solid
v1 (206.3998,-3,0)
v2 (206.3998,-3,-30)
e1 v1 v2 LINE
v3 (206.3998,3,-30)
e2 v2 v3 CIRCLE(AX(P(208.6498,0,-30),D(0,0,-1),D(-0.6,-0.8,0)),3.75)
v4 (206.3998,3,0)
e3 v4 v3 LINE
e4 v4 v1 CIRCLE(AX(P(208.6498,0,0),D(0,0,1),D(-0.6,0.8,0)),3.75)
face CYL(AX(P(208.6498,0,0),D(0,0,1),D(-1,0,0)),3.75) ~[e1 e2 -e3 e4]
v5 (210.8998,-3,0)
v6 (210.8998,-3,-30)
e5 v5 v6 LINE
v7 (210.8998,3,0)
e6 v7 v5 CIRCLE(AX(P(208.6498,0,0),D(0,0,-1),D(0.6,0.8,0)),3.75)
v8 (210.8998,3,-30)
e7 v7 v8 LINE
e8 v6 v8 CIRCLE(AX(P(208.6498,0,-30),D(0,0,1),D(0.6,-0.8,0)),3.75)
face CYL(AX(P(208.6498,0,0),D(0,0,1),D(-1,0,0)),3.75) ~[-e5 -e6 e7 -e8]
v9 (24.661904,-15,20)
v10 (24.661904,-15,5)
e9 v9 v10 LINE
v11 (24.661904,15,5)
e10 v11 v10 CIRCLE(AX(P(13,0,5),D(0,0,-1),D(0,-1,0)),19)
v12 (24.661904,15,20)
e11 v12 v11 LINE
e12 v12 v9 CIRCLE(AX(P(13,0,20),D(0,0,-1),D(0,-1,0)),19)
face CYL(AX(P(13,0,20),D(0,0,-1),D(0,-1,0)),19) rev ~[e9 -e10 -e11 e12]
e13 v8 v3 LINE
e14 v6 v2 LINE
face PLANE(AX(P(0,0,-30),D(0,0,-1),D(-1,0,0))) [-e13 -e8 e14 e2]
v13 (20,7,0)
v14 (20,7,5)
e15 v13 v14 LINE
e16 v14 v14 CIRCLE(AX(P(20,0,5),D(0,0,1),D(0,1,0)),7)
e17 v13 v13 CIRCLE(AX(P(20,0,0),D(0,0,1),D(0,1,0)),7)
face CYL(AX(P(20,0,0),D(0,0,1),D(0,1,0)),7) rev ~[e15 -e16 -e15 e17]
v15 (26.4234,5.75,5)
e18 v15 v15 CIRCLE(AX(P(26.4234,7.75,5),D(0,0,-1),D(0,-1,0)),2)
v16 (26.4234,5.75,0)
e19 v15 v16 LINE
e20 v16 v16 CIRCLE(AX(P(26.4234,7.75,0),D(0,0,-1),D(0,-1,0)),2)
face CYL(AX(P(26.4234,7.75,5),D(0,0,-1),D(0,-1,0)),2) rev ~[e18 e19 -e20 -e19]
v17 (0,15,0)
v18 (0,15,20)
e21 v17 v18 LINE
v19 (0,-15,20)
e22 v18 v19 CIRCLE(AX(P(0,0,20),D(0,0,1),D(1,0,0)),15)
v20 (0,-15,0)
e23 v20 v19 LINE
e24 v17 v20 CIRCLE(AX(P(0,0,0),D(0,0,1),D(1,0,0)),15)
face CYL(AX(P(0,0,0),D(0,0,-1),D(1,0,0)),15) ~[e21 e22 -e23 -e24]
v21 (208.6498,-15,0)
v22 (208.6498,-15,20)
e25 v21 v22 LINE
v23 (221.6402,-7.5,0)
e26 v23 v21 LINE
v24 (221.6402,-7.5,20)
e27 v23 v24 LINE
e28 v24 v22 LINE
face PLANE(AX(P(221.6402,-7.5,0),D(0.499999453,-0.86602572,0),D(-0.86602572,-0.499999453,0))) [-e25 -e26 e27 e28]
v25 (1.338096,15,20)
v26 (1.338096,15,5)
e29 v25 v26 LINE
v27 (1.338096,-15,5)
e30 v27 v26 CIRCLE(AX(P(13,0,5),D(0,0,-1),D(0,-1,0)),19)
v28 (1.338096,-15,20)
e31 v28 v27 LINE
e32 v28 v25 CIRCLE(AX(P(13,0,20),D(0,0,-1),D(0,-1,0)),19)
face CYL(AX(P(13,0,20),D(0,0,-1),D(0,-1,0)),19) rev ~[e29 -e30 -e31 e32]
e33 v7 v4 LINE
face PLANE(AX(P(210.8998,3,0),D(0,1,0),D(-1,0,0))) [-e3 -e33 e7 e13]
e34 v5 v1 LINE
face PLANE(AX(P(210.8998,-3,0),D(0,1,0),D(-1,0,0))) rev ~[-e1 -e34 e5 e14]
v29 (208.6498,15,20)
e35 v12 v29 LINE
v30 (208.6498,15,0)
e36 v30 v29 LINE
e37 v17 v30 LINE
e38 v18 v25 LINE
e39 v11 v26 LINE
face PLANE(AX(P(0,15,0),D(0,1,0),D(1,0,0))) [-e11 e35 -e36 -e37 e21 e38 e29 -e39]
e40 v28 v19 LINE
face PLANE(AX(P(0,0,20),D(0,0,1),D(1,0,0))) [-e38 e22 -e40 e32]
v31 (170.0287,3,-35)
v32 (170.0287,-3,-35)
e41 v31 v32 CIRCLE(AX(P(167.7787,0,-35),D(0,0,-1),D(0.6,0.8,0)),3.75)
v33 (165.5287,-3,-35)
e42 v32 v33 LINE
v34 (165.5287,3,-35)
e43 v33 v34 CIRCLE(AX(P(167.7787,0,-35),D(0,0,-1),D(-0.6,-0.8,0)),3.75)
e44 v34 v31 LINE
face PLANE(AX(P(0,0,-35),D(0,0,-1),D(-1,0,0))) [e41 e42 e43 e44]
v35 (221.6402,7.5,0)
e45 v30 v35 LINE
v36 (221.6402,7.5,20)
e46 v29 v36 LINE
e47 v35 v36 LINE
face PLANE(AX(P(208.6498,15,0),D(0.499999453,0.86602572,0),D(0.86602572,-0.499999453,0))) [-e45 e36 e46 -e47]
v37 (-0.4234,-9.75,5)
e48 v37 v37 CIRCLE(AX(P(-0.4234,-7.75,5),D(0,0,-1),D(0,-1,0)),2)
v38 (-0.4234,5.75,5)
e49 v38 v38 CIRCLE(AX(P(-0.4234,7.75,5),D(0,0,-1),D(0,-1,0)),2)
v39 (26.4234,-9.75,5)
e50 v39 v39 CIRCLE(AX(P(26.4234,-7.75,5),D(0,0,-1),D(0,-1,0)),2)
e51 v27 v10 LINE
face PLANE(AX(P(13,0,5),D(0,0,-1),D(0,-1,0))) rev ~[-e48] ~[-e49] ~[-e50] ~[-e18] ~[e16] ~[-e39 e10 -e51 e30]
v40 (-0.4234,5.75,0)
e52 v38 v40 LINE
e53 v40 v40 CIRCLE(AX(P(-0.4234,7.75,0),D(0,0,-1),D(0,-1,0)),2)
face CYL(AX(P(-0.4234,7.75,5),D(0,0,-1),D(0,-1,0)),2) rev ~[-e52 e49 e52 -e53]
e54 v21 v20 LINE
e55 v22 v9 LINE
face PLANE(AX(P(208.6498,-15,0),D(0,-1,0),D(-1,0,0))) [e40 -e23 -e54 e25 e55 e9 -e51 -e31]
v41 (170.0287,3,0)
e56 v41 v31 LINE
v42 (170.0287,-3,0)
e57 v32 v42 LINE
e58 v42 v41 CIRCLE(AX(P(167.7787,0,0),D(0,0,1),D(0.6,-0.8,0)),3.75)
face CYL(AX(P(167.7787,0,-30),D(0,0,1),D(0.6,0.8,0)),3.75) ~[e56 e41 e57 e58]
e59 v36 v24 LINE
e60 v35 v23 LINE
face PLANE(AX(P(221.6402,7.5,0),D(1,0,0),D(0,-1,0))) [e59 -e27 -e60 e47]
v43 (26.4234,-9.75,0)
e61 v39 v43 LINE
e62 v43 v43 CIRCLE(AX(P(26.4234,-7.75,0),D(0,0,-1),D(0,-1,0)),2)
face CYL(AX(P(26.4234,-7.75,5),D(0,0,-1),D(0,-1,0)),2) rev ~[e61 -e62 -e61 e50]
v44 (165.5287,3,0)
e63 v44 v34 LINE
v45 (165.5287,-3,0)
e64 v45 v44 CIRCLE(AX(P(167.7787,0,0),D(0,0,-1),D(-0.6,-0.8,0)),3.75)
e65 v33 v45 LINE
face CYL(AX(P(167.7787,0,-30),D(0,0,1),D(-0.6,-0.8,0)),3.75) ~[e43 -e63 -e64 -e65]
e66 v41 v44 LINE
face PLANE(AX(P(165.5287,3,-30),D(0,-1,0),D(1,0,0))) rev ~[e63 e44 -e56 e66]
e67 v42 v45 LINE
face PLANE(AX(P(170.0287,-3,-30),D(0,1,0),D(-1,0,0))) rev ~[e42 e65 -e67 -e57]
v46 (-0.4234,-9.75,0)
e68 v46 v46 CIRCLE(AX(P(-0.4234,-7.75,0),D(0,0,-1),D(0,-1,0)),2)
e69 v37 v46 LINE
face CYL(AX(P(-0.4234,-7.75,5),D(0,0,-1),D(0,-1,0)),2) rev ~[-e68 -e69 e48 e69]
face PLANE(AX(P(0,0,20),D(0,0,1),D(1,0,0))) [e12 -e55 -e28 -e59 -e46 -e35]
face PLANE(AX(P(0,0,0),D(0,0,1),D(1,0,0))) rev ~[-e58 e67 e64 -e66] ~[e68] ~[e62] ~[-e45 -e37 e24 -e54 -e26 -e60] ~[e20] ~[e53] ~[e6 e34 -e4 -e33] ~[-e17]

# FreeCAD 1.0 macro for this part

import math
import FreeCAD as App
import Part
import Sketcher

V = App.Vector
Q = App.Units.Quantity

doc = App.newDocument("Part")
body = doc.addObject("PartDesign::Body", "Body")

# Sketch on XY plane
sketch1 = body.newObject("Sketcher::SketchObject", "Sketch")
sketch1.AttachmentSupport = (doc.getObject("XY_Plane"), [""])
sketch1.MapMode = "FlatFace"
sketch1.addGeometry([
    Part.ArcOfCircle(Part.Circle(V(0, 0, 0), V(0, 0, 1), 15), math.radians(90), math.radians(270)),  # 0
    Part.LineSegment(V(0, -15, 0), V(209, -15, 0)),  # 1
    Part.LineSegment(V(209, -15, 0), V(222, -8, 0)),  # 2
    Part.LineSegment(V(222, -8, 0), V(222, 8, 0)),  # 3
    Part.LineSegment(V(222, 8, 0), V(209, 15, 0)),  # 4
    Part.LineSegment(V(209, 15, 0), V(0, 15, 0)),  # 5
], False)
sketch1.addConstraint([
    Sketcher.Constraint("Tangent", 0, 2, 1, 1),
    Sketcher.Constraint("Coincident", 1, 2, 2, 1),
    Sketcher.Constraint("Coincident", 2, 2, 3, 1),
    Sketcher.Constraint("Coincident", 3, 2, 4, 1),
    Sketcher.Constraint("Coincident", 4, 2, 5, 1),
    Sketcher.Constraint("Tangent", 5, 2, 0, 1),
    Sketcher.Constraint("Horizontal", 1),
    Sketcher.Constraint("Vertical", 3),
    Sketcher.Constraint("Horizontal", 5),
    Sketcher.Constraint("Coincident", 0, 3, -1, 1),
    Sketcher.Constraint("Vertical", 1, 2, 4, 2),
    Sketcher.Constraint("Equal", 2, 4),
    Sketcher.Constraint("Radius", 0, Q("15 mm")),
    Sketcher.Constraint("Angle", 2, Q("30 deg")),
    Sketcher.Constraint("DistanceY", 3, 1, 3, 2, Q("15 mm")),
    Sketcher.Constraint("DistanceX", 1, 1, 1, 2, Q("208.6498 mm")),
])
pad1 = body.newObject("PartDesign::Pad", "Pad")
pad1.Profile = sketch1
pad1.Length = 20

# Sketch on XY plane
sketch2 = body.newObject("Sketcher::SketchObject", "Sketch001")
sketch2.AttachmentSupport = (doc.getObject("XY_Plane"), [""])
sketch2.MapMode = "FlatFace"
sketch2.addGeometry([
    Part.ArcOfCircle(Part.Circle(V(208.6, 0, 0), V(0, 0, 1), 3.8), math.radians(-53), math.radians(53)),  # 0
    Part.LineSegment(V(210.9, -3, 0), V(206.4, -3, 0)),  # 1
    Part.ArcOfCircle(Part.Circle(V(208.6, 0, 0), V(0, 0, 1), 3.8), math.radians(127), math.radians(233)),  # 2
    Part.LineSegment(V(206.4, 3, 0), V(210.9, 3, 0)),  # 3
    Part.ArcOfCircle(Part.Circle(V(167.8, 0, 0), V(0, 0, 1), 3.8), math.radians(127), math.radians(233)),  # 4
    Part.LineSegment(V(165.5, 3, 0), V(170, 3, 0)),  # 5
    Part.ArcOfCircle(Part.Circle(V(167.8, 0, 0), V(0, 0, 1), 3.8), math.radians(-53), math.radians(53)),  # 6
    Part.LineSegment(V(170, -3, 0), V(165.5, -3, 0)),  # 7
], False)
sketch2.addConstraint([
    Sketcher.Constraint("Coincident", 0, 1, 1, 1),
    Sketcher.Constraint("Coincident", 1, 2, 2, 2),
    Sketcher.Constraint("Coincident", 2, 1, 3, 1),
    Sketcher.Constraint("Coincident", 3, 2, 0, 2),
    Sketcher.Constraint("Coincident", 4, 1, 5, 1),
    Sketcher.Constraint("Coincident", 5, 2, 6, 2),
    Sketcher.Constraint("Coincident", 6, 1, 7, 1),
    Sketcher.Constraint("Coincident", 7, 2, 4, 2),
    Sketcher.Constraint("Horizontal", 1),
    Sketcher.Constraint("Horizontal", 3),
    Sketcher.Constraint("Horizontal", 5),
    Sketcher.Constraint("Horizontal", 7),
    Sketcher.Constraint("Coincident", 2, 3, 0, 3),
    Sketcher.Constraint("Coincident", 6, 3, 4, 3),
    Sketcher.Constraint("Equal", 0, 2),
    Sketcher.Constraint("Equal", 2, 4),
    Sketcher.Constraint("Equal", 4, 6),
    Sketcher.Constraint("Symmetric", 1, 2, 2, 1, -1),
    Sketcher.Constraint("Symmetric", 5, 2, 6, 1, -1),
    Sketcher.Constraint("Horizontal", 3, 2, 4, 1),
    Sketcher.Constraint("Radius", 0, Q("3.75 mm")),
    Sketcher.Constraint("DistanceY", 1, 2, 2, 1, Q("6 mm")),
    Sketcher.Constraint("DistanceX", 4, 3, 0, 3, Q("40.871 mm")),
    Sketcher.Constraint("DistanceX", -1, 1, 0, 3, Q("208.6498 mm")),
])
pad2 = body.newObject("PartDesign::Pad", "Pad001")
pad2.Profile = sketch2
pad2.Length = 30
pad2.Reversed = True

# Sketch on XY plane
sketch3 = body.newObject("Sketcher::SketchObject", "Sketch002")
sketch3.AttachmentSupport = (doc.getObject("XY_Plane"), [""])
sketch3.MapMode = "FlatFace"
sketch3.addGeometry(Part.Circle(V(20, 0, 0), V(0, 0, 1), 7), False)
sketch3.addConstraint([
    Sketcher.Constraint("PointOnObject", 0, 3, -1),
    Sketcher.Constraint("Diameter", 0, Q("14 mm")),
    Sketcher.Constraint("DistanceX", -1, 1, 0, 3, Q("20 mm")),
])
doc.recompute()
hole = body.newObject("PartDesign::Hole", "Hole")
hole.Profile = sketch3
hole.ThreadType = "None"
hole.Diameter = 14
hole.DepthType = "ThroughAll"
hole.Reversed = True

# Sketch on XY plane
sketch4 = body.newObject("Sketcher::SketchObject", "Sketch003")
sketch4.AttachmentSupport = (doc.getObject("XY_Plane"), [""])
sketch4.MapMode = "FlatFace"
sketch4.AttachmentOffset = App.Placement(V(0, 0, 20), App.Rotation())
sketch4.addGeometry(Part.Circle(V(13, 0, 0), V(0, 0, 1), 19), False)
sketch4.addConstraint([
    Sketcher.Constraint("PointOnObject", 0, 3, -1),
    Sketcher.Constraint("Diameter", 0, Q("38 mm")),
    Sketcher.Constraint("DistanceX", -1, 1, 0, 3, Q("13 mm")),
])
doc.recompute()
hole2 = body.newObject("PartDesign::Hole", "Hole001")
hole2.Profile = sketch4
hole2.ThreadType = "None"
hole2.Diameter = 38
hole2.DepthType = "Dimension"
hole2.Depth = 15
hole2.DrillPoint = "Flat"

# Sketch on XY plane
sketch5 = body.newObject("Sketcher::SketchObject", "Sketch004")
sketch5.AttachmentSupport = (doc.getObject("XY_Plane"), [""])
sketch5.MapMode = "FlatFace"
sketch5.AttachmentOffset = App.Placement(V(0, 0, 5), App.Rotation())
sketch5.addGeometry([
    Part.Circle(V(26.4, 7.8, 0), V(0, 0, 1), 2),
    Part.Circle(V(26.4, -7.8, 0), V(0, 0, 1), 2),
    Part.Circle(V(-0.4, 7.8, 0), V(0, 0, 1), 2),
    Part.Circle(V(-0.4, -7.8, 0), V(0, 0, 1), 2),
], False)
sketch5.addConstraint([
    Sketcher.Constraint("Equal", 0, 1),
    Sketcher.Constraint("Equal", 1, 2),
    Sketcher.Constraint("Equal", 2, 3),
    Sketcher.Constraint("Symmetric", 0, 3, 1, 3, -1),
    Sketcher.Constraint("Symmetric", 2, 3, 3, 3, -1),
    Sketcher.Constraint("Horizontal", 0, 3, 2, 3),
    Sketcher.Constraint("Diameter", 0, Q("4 mm")),
    Sketcher.Constraint("DistanceY", 1, 3, 0, 3, Q("15.5 mm")),
    Sketcher.Constraint("DistanceX", -1, 1, 0, 3, Q("26.4234 mm")),
    Sketcher.Constraint("DistanceX", 2, 3, -1, 1, Q("0.4234 mm")),
])
doc.recompute()
hole3 = body.newObject("PartDesign::Hole", "Hole002")
hole3.Profile = sketch5
hole3.ThreadType = "None"
hole3.Diameter = 4
hole3.DepthType = "ThroughAll"

# Sketch on XY plane
sketch6 = body.newObject("Sketcher::SketchObject", "Sketch005")
sketch6.AttachmentSupport = (doc.getObject("XY_Plane"), [""])
sketch6.MapMode = "FlatFace"
sketch6.AttachmentOffset = App.Placement(V(0, 0, -30), App.Rotation())
sketch6.addGeometry([
    Part.ArcOfCircle(Part.Circle(V(167.8, 0, 0), V(0, 0, 1), 3.8), math.radians(127), math.radians(233)),
    Part.LineSegment(V(165.5, 3, 0), V(170, 3, 0)),
    Part.ArcOfCircle(Part.Circle(V(167.8, 0, 0), V(0, 0, 1), 3.8), math.radians(-53), math.radians(53)),
    Part.LineSegment(V(170, -3, 0), V(165.5, -3, 0)),
], False)
sketch6.addConstraint([
    Sketcher.Constraint("Coincident", 0, 1, 1, 1),
    Sketcher.Constraint("Coincident", 1, 2, 2, 2),
    Sketcher.Constraint("Coincident", 2, 1, 3, 1),
    Sketcher.Constraint("Coincident", 3, 2, 0, 2),
    Sketcher.Constraint("Horizontal", 1),
    Sketcher.Constraint("Horizontal", 3),
    Sketcher.Constraint("Coincident", 2, 3, 0, 3),
    Sketcher.Constraint("Equal", 0, 2),
    Sketcher.Constraint("Symmetric", 1, 2, 2, 1, -1),
    Sketcher.Constraint("Radius", 0, Q("3.75 mm")),
    Sketcher.Constraint("DistanceX", 1, 1, 1, 2, Q("4.5 mm")),
    Sketcher.Constraint("DistanceX", -1, 1, 0, 3, Q("167.7787 mm")),
])
pad3 = body.newObject("PartDesign::Pad", "Pad002")
pad3.Profile = sketch6
pad3.Length = 5
pad3.Reversed = True

doc.recompute()
